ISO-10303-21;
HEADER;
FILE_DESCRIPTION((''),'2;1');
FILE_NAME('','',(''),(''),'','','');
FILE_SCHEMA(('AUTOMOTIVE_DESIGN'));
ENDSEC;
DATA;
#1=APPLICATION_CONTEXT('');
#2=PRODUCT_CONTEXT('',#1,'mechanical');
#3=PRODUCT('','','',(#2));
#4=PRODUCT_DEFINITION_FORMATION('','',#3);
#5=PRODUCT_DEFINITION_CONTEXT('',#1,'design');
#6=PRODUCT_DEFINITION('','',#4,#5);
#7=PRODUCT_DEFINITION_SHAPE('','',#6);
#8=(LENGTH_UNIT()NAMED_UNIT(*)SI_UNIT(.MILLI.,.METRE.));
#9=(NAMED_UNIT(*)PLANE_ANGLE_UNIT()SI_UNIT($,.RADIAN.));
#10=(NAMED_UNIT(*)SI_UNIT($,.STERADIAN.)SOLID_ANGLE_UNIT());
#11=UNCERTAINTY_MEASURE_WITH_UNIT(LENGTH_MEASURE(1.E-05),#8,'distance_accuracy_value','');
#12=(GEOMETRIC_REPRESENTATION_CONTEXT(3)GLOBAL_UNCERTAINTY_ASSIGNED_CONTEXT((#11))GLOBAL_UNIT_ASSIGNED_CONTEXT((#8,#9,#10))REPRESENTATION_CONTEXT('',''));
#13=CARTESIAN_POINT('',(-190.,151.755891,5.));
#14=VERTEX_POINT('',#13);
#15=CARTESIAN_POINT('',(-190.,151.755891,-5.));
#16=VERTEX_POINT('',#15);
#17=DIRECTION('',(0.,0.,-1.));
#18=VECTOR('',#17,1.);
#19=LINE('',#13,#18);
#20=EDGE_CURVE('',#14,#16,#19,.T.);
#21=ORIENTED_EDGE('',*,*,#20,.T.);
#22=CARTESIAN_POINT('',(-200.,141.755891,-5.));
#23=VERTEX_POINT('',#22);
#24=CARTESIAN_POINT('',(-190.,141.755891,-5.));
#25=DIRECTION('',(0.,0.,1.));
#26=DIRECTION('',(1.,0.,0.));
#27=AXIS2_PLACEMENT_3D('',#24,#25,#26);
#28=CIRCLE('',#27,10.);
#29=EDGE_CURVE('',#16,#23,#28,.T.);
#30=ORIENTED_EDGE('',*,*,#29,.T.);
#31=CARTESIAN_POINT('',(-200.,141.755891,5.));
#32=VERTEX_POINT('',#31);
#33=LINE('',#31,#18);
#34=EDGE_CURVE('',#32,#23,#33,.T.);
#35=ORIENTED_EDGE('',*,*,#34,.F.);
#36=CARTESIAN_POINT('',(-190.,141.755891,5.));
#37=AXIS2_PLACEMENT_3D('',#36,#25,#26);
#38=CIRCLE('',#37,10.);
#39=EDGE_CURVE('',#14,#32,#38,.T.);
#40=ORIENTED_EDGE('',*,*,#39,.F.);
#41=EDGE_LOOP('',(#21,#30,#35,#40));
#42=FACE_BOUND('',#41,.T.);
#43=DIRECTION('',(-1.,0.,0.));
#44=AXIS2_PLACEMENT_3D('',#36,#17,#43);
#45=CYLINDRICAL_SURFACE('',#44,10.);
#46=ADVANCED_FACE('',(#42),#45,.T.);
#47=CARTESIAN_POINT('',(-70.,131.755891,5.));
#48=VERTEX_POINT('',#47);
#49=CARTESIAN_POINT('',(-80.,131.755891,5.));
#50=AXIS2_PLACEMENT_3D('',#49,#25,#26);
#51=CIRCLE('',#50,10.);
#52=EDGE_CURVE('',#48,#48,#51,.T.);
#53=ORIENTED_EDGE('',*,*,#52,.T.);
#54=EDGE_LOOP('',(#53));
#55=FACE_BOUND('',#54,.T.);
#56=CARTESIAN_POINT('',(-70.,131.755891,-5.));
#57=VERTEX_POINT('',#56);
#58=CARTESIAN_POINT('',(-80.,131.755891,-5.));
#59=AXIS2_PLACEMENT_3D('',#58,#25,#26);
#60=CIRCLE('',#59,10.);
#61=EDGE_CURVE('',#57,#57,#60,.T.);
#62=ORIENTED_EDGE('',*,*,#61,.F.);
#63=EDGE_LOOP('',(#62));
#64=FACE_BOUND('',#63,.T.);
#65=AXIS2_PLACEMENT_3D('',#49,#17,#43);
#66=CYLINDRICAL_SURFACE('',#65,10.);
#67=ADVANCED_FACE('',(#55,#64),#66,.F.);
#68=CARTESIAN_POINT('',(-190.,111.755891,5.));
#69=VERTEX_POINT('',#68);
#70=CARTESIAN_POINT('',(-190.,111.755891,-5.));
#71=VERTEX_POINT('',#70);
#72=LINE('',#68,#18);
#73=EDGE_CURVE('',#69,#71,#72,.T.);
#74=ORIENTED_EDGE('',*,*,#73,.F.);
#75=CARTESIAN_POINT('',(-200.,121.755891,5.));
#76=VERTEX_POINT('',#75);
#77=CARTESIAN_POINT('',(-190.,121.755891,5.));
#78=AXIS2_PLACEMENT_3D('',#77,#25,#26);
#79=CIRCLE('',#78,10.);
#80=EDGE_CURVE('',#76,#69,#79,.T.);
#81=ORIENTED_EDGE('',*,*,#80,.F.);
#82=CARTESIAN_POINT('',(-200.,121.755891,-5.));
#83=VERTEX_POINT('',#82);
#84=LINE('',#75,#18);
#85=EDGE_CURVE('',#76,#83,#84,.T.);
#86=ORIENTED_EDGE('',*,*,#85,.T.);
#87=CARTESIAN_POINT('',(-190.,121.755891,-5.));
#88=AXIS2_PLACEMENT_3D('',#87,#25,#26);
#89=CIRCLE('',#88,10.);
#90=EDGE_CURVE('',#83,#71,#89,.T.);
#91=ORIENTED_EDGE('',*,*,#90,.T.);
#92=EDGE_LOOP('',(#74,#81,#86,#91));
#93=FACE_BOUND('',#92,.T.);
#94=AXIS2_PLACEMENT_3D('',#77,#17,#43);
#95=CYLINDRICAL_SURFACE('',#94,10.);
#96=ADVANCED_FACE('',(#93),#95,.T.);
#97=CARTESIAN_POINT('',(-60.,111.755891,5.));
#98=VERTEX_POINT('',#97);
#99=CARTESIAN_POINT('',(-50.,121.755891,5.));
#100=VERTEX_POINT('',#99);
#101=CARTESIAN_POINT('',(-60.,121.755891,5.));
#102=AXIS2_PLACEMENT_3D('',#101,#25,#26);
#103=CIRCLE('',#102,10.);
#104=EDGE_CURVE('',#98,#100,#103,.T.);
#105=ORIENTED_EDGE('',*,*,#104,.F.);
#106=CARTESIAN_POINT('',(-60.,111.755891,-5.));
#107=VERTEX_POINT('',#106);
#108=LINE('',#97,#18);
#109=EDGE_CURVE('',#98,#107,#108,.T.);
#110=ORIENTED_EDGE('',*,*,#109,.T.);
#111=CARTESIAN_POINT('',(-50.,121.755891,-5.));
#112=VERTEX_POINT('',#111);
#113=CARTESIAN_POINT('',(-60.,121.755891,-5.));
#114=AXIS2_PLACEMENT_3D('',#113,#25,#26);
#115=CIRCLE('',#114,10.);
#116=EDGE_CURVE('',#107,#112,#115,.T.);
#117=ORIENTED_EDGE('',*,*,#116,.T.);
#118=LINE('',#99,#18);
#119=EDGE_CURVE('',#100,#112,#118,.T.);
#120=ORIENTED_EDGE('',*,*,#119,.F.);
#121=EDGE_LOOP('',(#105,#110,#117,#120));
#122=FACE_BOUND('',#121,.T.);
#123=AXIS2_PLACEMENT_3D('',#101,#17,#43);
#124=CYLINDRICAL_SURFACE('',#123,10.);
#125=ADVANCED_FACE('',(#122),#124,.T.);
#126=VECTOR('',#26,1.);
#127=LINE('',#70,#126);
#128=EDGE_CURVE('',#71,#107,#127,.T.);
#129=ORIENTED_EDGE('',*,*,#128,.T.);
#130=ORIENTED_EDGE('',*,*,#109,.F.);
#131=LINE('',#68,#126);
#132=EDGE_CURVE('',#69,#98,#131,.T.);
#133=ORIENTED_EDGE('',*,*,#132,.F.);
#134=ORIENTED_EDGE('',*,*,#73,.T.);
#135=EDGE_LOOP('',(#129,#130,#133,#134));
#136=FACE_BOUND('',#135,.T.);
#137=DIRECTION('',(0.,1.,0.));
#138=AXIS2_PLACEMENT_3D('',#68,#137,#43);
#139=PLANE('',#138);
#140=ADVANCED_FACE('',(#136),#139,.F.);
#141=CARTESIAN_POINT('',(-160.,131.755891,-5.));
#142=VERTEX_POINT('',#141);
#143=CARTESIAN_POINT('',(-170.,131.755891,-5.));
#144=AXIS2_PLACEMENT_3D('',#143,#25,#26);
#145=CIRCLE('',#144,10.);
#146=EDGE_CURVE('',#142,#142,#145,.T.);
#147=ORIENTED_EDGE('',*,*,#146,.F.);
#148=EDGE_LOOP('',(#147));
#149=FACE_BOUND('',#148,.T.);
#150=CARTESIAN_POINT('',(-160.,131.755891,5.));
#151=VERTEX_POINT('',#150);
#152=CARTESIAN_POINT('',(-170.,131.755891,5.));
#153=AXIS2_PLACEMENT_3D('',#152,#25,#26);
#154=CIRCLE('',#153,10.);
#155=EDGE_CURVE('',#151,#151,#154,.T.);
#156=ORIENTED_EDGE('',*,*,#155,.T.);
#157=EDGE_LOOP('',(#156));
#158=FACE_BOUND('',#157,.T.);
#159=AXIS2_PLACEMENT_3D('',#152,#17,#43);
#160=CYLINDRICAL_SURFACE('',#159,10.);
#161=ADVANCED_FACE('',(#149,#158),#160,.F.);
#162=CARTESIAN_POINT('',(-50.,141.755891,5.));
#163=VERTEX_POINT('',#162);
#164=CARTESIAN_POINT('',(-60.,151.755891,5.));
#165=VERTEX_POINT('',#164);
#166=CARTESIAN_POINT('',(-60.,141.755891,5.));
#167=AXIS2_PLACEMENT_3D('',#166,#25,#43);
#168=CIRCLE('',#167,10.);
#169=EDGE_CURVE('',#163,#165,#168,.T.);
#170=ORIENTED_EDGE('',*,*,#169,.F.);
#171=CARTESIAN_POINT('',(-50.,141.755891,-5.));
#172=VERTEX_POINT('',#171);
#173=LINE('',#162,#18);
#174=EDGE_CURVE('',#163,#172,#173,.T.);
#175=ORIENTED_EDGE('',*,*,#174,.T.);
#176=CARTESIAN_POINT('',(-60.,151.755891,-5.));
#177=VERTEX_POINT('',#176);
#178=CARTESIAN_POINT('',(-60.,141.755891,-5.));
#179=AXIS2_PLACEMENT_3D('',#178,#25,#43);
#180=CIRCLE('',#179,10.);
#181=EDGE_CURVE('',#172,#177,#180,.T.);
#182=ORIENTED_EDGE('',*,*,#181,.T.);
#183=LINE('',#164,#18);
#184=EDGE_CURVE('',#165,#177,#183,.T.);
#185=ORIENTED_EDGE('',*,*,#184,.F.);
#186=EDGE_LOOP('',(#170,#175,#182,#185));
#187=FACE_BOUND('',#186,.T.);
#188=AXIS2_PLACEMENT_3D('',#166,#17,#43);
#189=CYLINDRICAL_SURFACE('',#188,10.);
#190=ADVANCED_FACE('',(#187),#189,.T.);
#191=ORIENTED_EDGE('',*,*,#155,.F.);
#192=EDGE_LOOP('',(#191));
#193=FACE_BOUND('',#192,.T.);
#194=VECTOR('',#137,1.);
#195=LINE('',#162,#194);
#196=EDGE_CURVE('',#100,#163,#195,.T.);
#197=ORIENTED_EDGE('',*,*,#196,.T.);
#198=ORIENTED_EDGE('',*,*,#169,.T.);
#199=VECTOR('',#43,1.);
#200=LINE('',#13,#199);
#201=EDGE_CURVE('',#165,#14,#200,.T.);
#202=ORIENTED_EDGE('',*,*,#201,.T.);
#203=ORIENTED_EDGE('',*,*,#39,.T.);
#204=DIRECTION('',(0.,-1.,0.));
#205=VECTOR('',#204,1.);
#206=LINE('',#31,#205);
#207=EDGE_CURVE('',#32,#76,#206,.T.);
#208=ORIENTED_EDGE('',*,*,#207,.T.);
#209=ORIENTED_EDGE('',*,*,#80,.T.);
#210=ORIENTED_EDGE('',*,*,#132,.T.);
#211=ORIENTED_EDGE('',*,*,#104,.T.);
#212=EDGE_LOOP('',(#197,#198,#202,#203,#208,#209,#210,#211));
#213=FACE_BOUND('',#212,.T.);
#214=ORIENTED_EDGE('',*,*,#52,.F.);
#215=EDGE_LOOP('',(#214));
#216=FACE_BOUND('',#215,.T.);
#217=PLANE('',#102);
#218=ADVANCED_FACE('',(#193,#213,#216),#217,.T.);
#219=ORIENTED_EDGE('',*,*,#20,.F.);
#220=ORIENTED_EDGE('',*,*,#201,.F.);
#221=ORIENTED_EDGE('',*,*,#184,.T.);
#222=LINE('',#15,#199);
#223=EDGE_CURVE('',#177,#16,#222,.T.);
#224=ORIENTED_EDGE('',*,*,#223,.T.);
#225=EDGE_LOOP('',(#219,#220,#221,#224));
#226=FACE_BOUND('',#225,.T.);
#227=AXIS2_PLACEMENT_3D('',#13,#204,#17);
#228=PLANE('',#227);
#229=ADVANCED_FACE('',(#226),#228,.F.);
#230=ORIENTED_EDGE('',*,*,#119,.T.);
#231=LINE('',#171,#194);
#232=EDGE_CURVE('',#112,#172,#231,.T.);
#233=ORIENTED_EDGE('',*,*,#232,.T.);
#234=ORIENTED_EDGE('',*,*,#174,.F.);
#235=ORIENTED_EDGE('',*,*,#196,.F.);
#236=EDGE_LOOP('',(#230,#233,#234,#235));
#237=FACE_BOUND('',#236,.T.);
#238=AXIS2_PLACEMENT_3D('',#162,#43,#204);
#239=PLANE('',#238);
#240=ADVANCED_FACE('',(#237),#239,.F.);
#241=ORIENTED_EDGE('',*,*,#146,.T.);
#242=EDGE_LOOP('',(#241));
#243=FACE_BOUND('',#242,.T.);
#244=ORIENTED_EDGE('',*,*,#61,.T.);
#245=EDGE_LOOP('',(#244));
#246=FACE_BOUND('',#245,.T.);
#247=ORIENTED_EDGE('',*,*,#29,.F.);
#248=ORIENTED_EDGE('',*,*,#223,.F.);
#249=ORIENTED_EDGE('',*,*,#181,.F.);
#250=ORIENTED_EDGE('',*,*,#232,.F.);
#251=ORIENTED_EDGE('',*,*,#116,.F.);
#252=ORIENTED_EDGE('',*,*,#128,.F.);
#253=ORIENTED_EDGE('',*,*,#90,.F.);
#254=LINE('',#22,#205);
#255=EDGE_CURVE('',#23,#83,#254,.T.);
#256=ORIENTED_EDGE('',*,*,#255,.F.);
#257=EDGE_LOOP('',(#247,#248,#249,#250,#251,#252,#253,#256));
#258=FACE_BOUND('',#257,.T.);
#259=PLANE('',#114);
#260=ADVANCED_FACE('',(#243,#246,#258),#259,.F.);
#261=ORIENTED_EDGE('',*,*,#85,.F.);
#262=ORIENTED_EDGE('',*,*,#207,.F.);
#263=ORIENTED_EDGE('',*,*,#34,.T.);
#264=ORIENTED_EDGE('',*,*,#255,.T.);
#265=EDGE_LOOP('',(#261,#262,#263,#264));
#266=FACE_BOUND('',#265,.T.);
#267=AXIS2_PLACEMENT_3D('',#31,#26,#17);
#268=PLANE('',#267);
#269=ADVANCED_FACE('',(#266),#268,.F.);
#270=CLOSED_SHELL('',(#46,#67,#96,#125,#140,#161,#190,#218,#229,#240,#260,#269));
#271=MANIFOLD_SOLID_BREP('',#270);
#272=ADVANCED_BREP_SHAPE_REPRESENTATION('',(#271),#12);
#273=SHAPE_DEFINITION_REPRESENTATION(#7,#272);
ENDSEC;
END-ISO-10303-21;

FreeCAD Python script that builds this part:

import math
import FreeCAD as App
import Part
import Sketcher
Q = App.Units.Quantity

doc = App.newDocument("Part")
params = doc.addObject("Spreadsheet::Sheet", "Params")
for row, (alias, value) in enumerate([
    ("sketch1_diameter", "20 mm"),
    ("sketch1_width", "130 mm"),
    ("sketch1_height", "20 mm"),
    ("pad1_length", "10 mm"),
], start=1):
    params.set(f"A{row}", alias)
    params.set(f"B{row}", "=" + value)
    params.setAlias(f"B{row}", alias)

body = doc.addObject("PartDesign::Body", "Body")

sketch1 = doc.addObject("Sketcher::SketchObject", "Sketch")
body.addObject(sketch1)
sketch1.AttachmentSupport = (doc.XY_Plane, [""])
sketch1.MapMode = "FlatFace"
sketch1.addGeometry([
    Part.LineSegment(App.Vector(-60, 152, 0), App.Vector(-190, 152, 0)),
    Part.ArcOfCircle(Part.Circle(App.Vector(-190, 142, 0), App.Vector(0, 0, 1), 10), math.radians(90), math.radians(180)),
    Part.LineSegment(App.Vector(-200, 142, 0), App.Vector(-200, 122, 0)),
    Part.ArcOfCircle(Part.Circle(App.Vector(-190, 122, 0), App.Vector(0, 0, 1), 10), math.radians(180), math.radians(270)),
    Part.LineSegment(App.Vector(-190, 112, 0), App.Vector(-60, 112, 0)),
    Part.ArcOfCircle(Part.Circle(App.Vector(-60, 122, 0), App.Vector(0, 0, 1), 10), math.radians(-90), math.radians(0)),
    Part.LineSegment(App.Vector(-50, 122, 0), App.Vector(-50, 142, 0)),
    Part.ArcOfCircle(Part.Circle(App.Vector(-60, 142, 0), App.Vector(0, 0, 1), 10), math.radians(0), math.radians(90)),
    Part.Circle(App.Vector(-80, 132, 0), App.Vector(0, 0, 1), 10),
    Part.Circle(App.Vector(-170, 132, 0), App.Vector(0, 0, 1), 10),
], False)
sketch1.addConstraint([
    Sketcher.Constraint("Tangent", 0, 2, 1, 1),
    Sketcher.Constraint("Tangent", 1, 2, 2, 1),
    Sketcher.Constraint("Tangent", 2, 2, 3, 1),
    Sketcher.Constraint("Tangent", 3, 2, 4, 1),
    Sketcher.Constraint("Tangent", 4, 2, 5, 1),
    Sketcher.Constraint("Tangent", 5, 2, 6, 1),
    Sketcher.Constraint("Tangent", 6, 2, 7, 1),
    Sketcher.Constraint("Tangent", 7, 2, 0, 1),
    Sketcher.Constraint("Horizontal", 0),
    Sketcher.Constraint("Vertical", 2),
    Sketcher.Constraint("Horizontal", 4),
    Sketcher.Constraint("Vertical", 6),
    Sketcher.Constraint("Equal", 1, 3),
    Sketcher.Constraint("Equal", 3, 5),
    Sketcher.Constraint("Equal", 5, 7),
    Sketcher.Constraint("Equal", 7, 8),
    Sketcher.Constraint("Equal", 8, 9),
    Sketcher.Constraint("Horizontal", 8, 3, 9, 3),
    Sketcher.Constraint("Diameter", 8, Q("20 mm")),
    Sketcher.Constraint("DistanceX", 0, 2, 0, 1, Q("130 mm")),
    Sketcher.Constraint("DistanceY", 2, 2, 2, 1, Q("20 mm")),
    Sketcher.Constraint("DistanceX", 1, 3, -1, 1, Q("190 mm")),
    Sketcher.Constraint("DistanceX", 8, 3, -1, 1, Q("80 mm")),
    Sketcher.Constraint("DistanceX", 9, 3, -1, 1, Q("170 mm")),
    Sketcher.Constraint("DistanceY", 5, 3, 8, 3, Q("10 mm")),
    Sketcher.Constraint("DistanceY", -1, 1, 1, 3, Q("141.755891 mm")),
])
sketch1.setExpression("Constraints[18]", "Params.sketch1_diameter")
sketch1.setExpression("Constraints[19]", "Params.sketch1_width")
sketch1.setExpression("Constraints[20]", "Params.sketch1_height")
pad1 = doc.addObject("PartDesign::Pad", "Pad")
body.addObject(pad1)
pad1.Profile = sketch1
pad1.setExpression("Length", "Params.pad1_length")
pad1.Midplane = True

doc.recompute()
